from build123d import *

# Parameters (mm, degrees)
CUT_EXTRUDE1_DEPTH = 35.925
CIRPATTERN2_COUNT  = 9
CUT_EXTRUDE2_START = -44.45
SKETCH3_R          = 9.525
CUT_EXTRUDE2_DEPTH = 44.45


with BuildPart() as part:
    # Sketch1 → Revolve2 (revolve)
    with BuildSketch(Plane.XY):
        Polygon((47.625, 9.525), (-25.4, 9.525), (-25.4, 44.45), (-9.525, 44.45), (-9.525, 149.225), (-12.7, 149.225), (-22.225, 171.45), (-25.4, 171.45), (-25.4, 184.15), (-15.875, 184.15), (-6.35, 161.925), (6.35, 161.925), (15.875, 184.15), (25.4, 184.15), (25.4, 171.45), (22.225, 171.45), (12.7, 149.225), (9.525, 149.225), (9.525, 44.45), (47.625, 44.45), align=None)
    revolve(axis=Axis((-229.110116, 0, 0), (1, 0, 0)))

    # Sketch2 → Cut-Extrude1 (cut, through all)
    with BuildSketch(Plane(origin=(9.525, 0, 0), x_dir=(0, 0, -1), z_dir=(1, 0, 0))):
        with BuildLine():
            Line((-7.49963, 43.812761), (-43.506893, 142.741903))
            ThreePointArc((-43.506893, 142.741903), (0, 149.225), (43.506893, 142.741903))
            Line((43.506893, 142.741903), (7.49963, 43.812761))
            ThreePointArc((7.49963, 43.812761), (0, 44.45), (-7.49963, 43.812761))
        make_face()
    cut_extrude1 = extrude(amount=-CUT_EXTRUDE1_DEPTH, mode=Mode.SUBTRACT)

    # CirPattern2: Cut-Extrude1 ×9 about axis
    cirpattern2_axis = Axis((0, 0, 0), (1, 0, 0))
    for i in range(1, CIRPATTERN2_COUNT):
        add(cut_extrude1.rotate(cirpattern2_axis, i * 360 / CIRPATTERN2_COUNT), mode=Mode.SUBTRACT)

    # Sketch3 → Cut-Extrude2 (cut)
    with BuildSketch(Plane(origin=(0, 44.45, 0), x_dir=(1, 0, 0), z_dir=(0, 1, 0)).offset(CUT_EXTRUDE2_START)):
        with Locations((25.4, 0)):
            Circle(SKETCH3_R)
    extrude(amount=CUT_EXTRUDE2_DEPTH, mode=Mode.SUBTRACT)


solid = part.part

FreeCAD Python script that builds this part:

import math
import FreeCAD as App
import Part
import Sketcher
from FreeCAD import Vector
Q = App.Units.Quantity

doc = App.newDocument("Part")
params = doc.addObject("Spreadsheet::Sheet", "Params")
for row, (alias, value) in enumerate([
    ("sketch1_width", "1.5 in"),
    ("sketch1_width2", "0.5 in"),
    ("sketch1_height", "1.375 in"),
    ("revolution_angle", "360 deg"),
    ("sketch2_radius", "5.875 in"),
    ("sketch3_diameter", "0.75 in"),
    ("pocket2_length", "1.75 in"),
], start=1):
    params.set(f"A{row}", alias)
    params.set(f"B{row}", "=" + value)
    params.setAlias(f"B{row}", alias)

body = doc.addObject("PartDesign::Body", "Body")

sketch1 = body.newObject("Sketcher::SketchObject", "Sketch")
sketch1.AttachmentSupport = (doc.getObject("XY_Plane"), [""])
sketch1.MapMode = "FlatFace"
sketch1.addGeometry([
    Part.LineSegment(Vector(-25.4, 9.5, 0), Vector(47.6, 9.5, 0)),
    Part.LineSegment(Vector(47.6, 9.5, 0), Vector(47.6, 44.5, 0)),
    Part.LineSegment(Vector(47.6, 44.5, 0), Vector(9.5, 44.5, 0)),
    Part.LineSegment(Vector(9.5, 44.5, 0), Vector(9.5, 149.2, 0)),
    Part.LineSegment(Vector(9.5, 149.2, 0), Vector(12.7, 149.2, 0)),
    Part.LineSegment(Vector(12.7, 149.2, 0), Vector(22.2, 171.4, 0)),
    Part.LineSegment(Vector(22.2, 171.4, 0), Vector(25.4, 171.4, 0)),
    Part.LineSegment(Vector(25.4, 171.4, 0), Vector(25.4, 184.2, 0)),
    Part.LineSegment(Vector(25.4, 184.2, 0), Vector(15.9, 184.2, 0)),
    Part.LineSegment(Vector(15.9, 184.2, 0), Vector(6.3, 161.9, 0)),
    Part.LineSegment(Vector(6.3, 161.9, 0), Vector(-6.3, 161.9, 0)),
    Part.LineSegment(Vector(-6.3, 161.9, 0), Vector(-15.9, 184.2, 0)),
    Part.LineSegment(Vector(-15.9, 184.2, 0), Vector(-25.4, 184.2, 0)),
    Part.LineSegment(Vector(-25.4, 184.2, 0), Vector(-25.4, 171.4, 0)),
    Part.LineSegment(Vector(-25.4, 171.4, 0), Vector(-22.2, 171.4, 0)),
    Part.LineSegment(Vector(-22.2, 171.4, 0), Vector(-12.7, 149.2, 0)),
    Part.LineSegment(Vector(-12.7, 149.2, 0), Vector(-9.5, 149.2, 0)),
    Part.LineSegment(Vector(-9.5, 149.2, 0), Vector(-9.5, 44.5, 0)),
    Part.LineSegment(Vector(-9.5, 44.5, 0), Vector(-25.4, 44.5, 0)),
    Part.LineSegment(Vector(-25.4, 44.5, 0), Vector(-25.4, 9.5, 0)),
], False)
sketch1.addConstraint([
    Sketcher.Constraint("Coincident", 0, 2, 1, 1),
    Sketcher.Constraint("Coincident", 1, 2, 2, 1),
    Sketcher.Constraint("Coincident", 2, 2, 3, 1),
    Sketcher.Constraint("Coincident", 3, 2, 4, 1),
    Sketcher.Constraint("Coincident", 4, 2, 5, 1),
    Sketcher.Constraint("Coincident", 5, 2, 6, 1),
    Sketcher.Constraint("Coincident", 6, 2, 7, 1),
    Sketcher.Constraint("Coincident", 7, 2, 8, 1),
    Sketcher.Constraint("Coincident", 8, 2, 9, 1),
    Sketcher.Constraint("Coincident", 9, 2, 10, 1),
    Sketcher.Constraint("Coincident", 10, 2, 11, 1),
    Sketcher.Constraint("Coincident", 11, 2, 12, 1),
    Sketcher.Constraint("Coincident", 12, 2, 13, 1),
    Sketcher.Constraint("Coincident", 13, 2, 14, 1),
    Sketcher.Constraint("Coincident", 14, 2, 15, 1),
    Sketcher.Constraint("Coincident", 15, 2, 16, 1),
    Sketcher.Constraint("Coincident", 16, 2, 17, 1),
    Sketcher.Constraint("Coincident", 17, 2, 18, 1),
    Sketcher.Constraint("Coincident", 18, 2, 19, 1),
    Sketcher.Constraint("Coincident", 19, 2, 0, 1),
    Sketcher.Constraint("Horizontal", 0),
    Sketcher.Constraint("Vertical", 1),
    Sketcher.Constraint("Horizontal", 2),
    Sketcher.Constraint("Vertical", 3),
    Sketcher.Constraint("Horizontal", 4),
    Sketcher.Constraint("Horizontal", 6),
    Sketcher.Constraint("Vertical", 7),
    Sketcher.Constraint("Horizontal", 8),
    Sketcher.Constraint("Horizontal", 10),
    Sketcher.Constraint("Horizontal", 12),
    Sketcher.Constraint("Vertical", 13),
    Sketcher.Constraint("Horizontal", 14),
    Sketcher.Constraint("Horizontal", 16),
    Sketcher.Constraint("Vertical", 17),
    Sketcher.Constraint("Horizontal", 18),
    Sketcher.Constraint("Vertical", 19),
    Sketcher.Constraint("Symmetric", 8, 2, 11, 2, -2),
    Sketcher.Constraint("Symmetric", 6, 2, 13, 2, -2),
    Sketcher.Constraint("Symmetric", 4, 2, 15, 2, -2),
    Sketcher.Constraint("Symmetric", 2, 2, 17, 2, -2),
    Sketcher.Constraint("Parallel", 5, 9),
    Sketcher.Constraint("Parallel", 11, 15),
    Sketcher.Constraint("Vertical", 13, 2, 18, 2),
    Sketcher.Constraint("Equal", 4, 6),
    Sketcher.Constraint("Equal", 6, 14),
    Sketcher.Constraint("Equal", 10, 7),
    Sketcher.Constraint("Equal", 5, 9),
    Sketcher.Constraint("DistanceX", 2, 2, 2, 1, Q("1.5 in")),
    Sketcher.Constraint("DistanceX", 10, 2, 10, 1, Q("0.5 in")),
    Sketcher.Constraint("DistanceX", -1, 1, 6, 2, Q("1 in")),
    Sketcher.Constraint("DistanceY", 2, 2, 5, 2, Q("5 in")),
    Sketcher.Constraint("DistanceX", 5, 2, 1, 2, Q("1 in")),
    Sketcher.Constraint("DistanceY", 0, 2, 3, 2, Q("5.5 in")),
    Sketcher.Constraint("DistanceX", 11, 2, 5, 2, Q("1.5 in")),
    Sketcher.Constraint("DistanceY", 1, 1, 1, 2, Q("1.375 in")),
    Sketcher.Constraint("DistanceY", -1, 1, 1, 2, Q("1.75 in")),
])
sketch1.setExpression("Constraints[47]", "Params.sketch1_width")
sketch1.setExpression("Constraints[48]", "Params.sketch1_width2")
sketch1.setExpression("Constraints[54]", "Params.sketch1_height")
revolution = body.newObject("PartDesign::Revolution", "Revolution")
revolution.Profile = sketch1
revolution.ReferenceAxis = (sketch1, ["H_Axis"])
revolution.setExpression("Angle", "Params.revolution_angle")

sketch2 = body.newObject("Sketcher::SketchObject", "Sketch001")
sketch2.AttachmentSupport = (doc.getObject("YZ_Plane"), [""])
sketch2.MapMode = "FlatFace"
sketch2.AttachmentOffset = App.Placement(Vector(0, 0, 0.375 * 25.4), App.Rotation())
sketch2.addGeometry([
    Part.LineSegment(Vector(143, 44, 0), Vector(44, 7, 0)),
    Part.ArcOfCircle(Part.Circle(Vector(0, 0, 0), Vector(0, 0, 1), 44), math.radians(-9.71), math.radians(9.71)),
    Part.LineSegment(Vector(44, -7, 0), Vector(143, -44, 0)),
    Part.ArcOfCircle(Part.Circle(Vector(0, 0, 0), Vector(0, 0, 1), 149), math.radians(-17), math.radians(17)),
], False)
sketch2.addConstraint([
    Sketcher.Constraint("Coincident", 0, 2, 1, 2),
    Sketcher.Constraint("Coincident", 1, 1, 2, 1),
    Sketcher.Constraint("Coincident", 2, 2, 3, 1),
    Sketcher.Constraint("Coincident", 3, 2, 0, 1),
    Sketcher.Constraint("Coincident", 3, 3, -1, 1),
    Sketcher.Constraint("Symmetric", 0, 2, 1, 1, -1),
    Sketcher.Constraint("Vertical", 2, 2, 3, 2),
    Sketcher.Constraint("Angle", 0, Q("-160 deg")),
    Sketcher.Constraint("Radius", 3, Q("5.875 in")),
    Sketcher.Constraint("Radius", 1, Q("44.449982 mm")),
    Sketcher.Constraint("DistanceX", 3, 3, 2, 2, Q("142.741902 mm")),
    Sketcher.Constraint("DistanceX", -1, 1, 0, 2, Q("43.812761 mm")),
])
sketch2.setExpression("Constraints[8]", "Params.sketch2_radius")
pocket1 = body.newObject("PartDesign::Pocket", "Pocket")
pocket1.Profile = sketch2
pocket1.Type = "ThroughAll"
doc.recompute()

polarpattern = body.newObject("PartDesign::PolarPattern", "PolarPattern")
polarpattern.Originals = [pocket1]
polarpattern.Axis = (doc.getObject("X_Axis"), [""])
polarpattern.Angle = 360
polarpattern.Occurrences = 9
body.Tip = polarpattern

sketch3 = body.newObject("Sketcher::SketchObject", "Sketch002")
sketch3.AttachmentSupport = (doc.getObject("XZ_Plane"), [""])
sketch3.MapMode = "FlatFace"
sketch3.addGeometry(Part.Circle(Vector(25, 0, 0), Vector(0, 0, 1), 10), False)
sketch3.addConstraint([
    Sketcher.Constraint("PointOnObject", 0, 3, -1),
    Sketcher.Constraint("Diameter", 0, Q("0.75 in")),
    Sketcher.Constraint("DistanceX", -1, 1, 0, 3, Q("1 in")),
])
sketch3.setExpression("Constraints[1]", "Params.sketch3_diameter")
pocket2 = body.newObject("PartDesign::Pocket", "Pocket001")
pocket2.Profile = sketch3
pocket2.setExpression("Length", "Params.pocket2_length")

doc.recompute()
